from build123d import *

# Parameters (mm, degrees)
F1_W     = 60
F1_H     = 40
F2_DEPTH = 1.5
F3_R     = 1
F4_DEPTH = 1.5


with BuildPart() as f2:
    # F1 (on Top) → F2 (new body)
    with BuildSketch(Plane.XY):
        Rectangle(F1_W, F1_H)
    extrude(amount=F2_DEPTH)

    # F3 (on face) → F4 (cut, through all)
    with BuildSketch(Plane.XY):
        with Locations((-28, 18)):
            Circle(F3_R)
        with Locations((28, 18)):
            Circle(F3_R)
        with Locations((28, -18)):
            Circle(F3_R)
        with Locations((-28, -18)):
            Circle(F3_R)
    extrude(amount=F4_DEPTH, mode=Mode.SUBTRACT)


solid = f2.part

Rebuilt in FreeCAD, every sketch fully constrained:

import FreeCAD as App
import Part
import Sketcher

V = App.Vector


def add_polygon(sketch, points):
    """Adds a closed chain of lines whose ends are joined by coincident constraints."""
    first, n = sketch.GeometryCount, len(points)
    for a, b in zip(points, points[1:] + points[:1]):
        sketch.addGeometry(Part.LineSegment(App.Vector(*a, 0), App.Vector(*b, 0)), False)
    for i in range(n):
        sketch.addConstraint(Sketcher.Constraint("Coincident", first + i, 2, first + (i + 1) % n, 1))

doc = App.newDocument("Part")
body = doc.addObject("PartDesign::Body", "Body")

# Sketch on XY plane
sketch1 = doc.addObject("Sketcher::SketchObject", "Sketch")
body.addObject(sketch1)
sketch1.AttachmentSupport = (doc.XY_Plane, [""])
sketch1.MapMode = "FlatFace"
add_polygon(sketch1, [(-30, 20), (-30, -20), (30, -20), (30, 20)])  # lines 0-3
sketch1.addConstraint([
    Sketcher.Constraint("Vertical", 0),
    Sketcher.Constraint("Horizontal", 1),
    Sketcher.Constraint("Vertical", 2),
    Sketcher.Constraint("Horizontal", 3),
    Sketcher.Constraint("Symmetric", 0, 2, 2, 2, -1, 1),
    Sketcher.Constraint("DistanceX", 1, 1, 1, 2, 60.0),
    Sketcher.Constraint("DistanceY", 0, 2, 0, 1, 40.0),
])
pad1 = doc.addObject("PartDesign::Pad", "Pad")
body.addObject(pad1)
pad1.Profile = sketch1
pad1.Length = 1.5

# Sketch on XY plane
sketch2 = doc.addObject("Sketcher::SketchObject", "Sketch001")
body.addObject(sketch2)
sketch2.AttachmentSupport = (doc.XY_Plane, [""])
sketch2.MapMode = "FlatFace"
sketch2.addGeometry([
    Part.Circle(V(-28, 18, 0), V(0, 0, 1), 1),
    Part.Circle(V(28, 18, 0), V(0, 0, 1), 1),
    Part.Circle(V(28, -18, 0), V(0, 0, 1), 1),
    Part.Circle(V(-28, -18, 0), V(0, 0, 1), 1),
], False)
sketch2.addConstraint([
    Sketcher.Constraint("Equal", 0, 1),
    Sketcher.Constraint("Equal", 1, 2),
    Sketcher.Constraint("Equal", 2, 3),
    Sketcher.Constraint("Symmetric", 0, 3, 2, 3, -1, 1),
    Sketcher.Constraint("Symmetric", 1, 3, 3, 3, -1, 1),
    Sketcher.Constraint("Symmetric", 0, 3, 1, 3, -2),
    Sketcher.Constraint("Diameter", 0, 2.0),
    Sketcher.Constraint("DistanceX", 0, 3, -1, 1, 28.0),
    Sketcher.Constraint("DistanceY", -1, 1, 0, 3, 18.0),
])
pocket1 = doc.addObject("PartDesign::Pocket", "Pocket")
body.addObject(pocket1)
pocket1.Profile = sketch2
pocket1.Type = "ThroughAll"
pocket1.Reversed = True

doc.recompute()
